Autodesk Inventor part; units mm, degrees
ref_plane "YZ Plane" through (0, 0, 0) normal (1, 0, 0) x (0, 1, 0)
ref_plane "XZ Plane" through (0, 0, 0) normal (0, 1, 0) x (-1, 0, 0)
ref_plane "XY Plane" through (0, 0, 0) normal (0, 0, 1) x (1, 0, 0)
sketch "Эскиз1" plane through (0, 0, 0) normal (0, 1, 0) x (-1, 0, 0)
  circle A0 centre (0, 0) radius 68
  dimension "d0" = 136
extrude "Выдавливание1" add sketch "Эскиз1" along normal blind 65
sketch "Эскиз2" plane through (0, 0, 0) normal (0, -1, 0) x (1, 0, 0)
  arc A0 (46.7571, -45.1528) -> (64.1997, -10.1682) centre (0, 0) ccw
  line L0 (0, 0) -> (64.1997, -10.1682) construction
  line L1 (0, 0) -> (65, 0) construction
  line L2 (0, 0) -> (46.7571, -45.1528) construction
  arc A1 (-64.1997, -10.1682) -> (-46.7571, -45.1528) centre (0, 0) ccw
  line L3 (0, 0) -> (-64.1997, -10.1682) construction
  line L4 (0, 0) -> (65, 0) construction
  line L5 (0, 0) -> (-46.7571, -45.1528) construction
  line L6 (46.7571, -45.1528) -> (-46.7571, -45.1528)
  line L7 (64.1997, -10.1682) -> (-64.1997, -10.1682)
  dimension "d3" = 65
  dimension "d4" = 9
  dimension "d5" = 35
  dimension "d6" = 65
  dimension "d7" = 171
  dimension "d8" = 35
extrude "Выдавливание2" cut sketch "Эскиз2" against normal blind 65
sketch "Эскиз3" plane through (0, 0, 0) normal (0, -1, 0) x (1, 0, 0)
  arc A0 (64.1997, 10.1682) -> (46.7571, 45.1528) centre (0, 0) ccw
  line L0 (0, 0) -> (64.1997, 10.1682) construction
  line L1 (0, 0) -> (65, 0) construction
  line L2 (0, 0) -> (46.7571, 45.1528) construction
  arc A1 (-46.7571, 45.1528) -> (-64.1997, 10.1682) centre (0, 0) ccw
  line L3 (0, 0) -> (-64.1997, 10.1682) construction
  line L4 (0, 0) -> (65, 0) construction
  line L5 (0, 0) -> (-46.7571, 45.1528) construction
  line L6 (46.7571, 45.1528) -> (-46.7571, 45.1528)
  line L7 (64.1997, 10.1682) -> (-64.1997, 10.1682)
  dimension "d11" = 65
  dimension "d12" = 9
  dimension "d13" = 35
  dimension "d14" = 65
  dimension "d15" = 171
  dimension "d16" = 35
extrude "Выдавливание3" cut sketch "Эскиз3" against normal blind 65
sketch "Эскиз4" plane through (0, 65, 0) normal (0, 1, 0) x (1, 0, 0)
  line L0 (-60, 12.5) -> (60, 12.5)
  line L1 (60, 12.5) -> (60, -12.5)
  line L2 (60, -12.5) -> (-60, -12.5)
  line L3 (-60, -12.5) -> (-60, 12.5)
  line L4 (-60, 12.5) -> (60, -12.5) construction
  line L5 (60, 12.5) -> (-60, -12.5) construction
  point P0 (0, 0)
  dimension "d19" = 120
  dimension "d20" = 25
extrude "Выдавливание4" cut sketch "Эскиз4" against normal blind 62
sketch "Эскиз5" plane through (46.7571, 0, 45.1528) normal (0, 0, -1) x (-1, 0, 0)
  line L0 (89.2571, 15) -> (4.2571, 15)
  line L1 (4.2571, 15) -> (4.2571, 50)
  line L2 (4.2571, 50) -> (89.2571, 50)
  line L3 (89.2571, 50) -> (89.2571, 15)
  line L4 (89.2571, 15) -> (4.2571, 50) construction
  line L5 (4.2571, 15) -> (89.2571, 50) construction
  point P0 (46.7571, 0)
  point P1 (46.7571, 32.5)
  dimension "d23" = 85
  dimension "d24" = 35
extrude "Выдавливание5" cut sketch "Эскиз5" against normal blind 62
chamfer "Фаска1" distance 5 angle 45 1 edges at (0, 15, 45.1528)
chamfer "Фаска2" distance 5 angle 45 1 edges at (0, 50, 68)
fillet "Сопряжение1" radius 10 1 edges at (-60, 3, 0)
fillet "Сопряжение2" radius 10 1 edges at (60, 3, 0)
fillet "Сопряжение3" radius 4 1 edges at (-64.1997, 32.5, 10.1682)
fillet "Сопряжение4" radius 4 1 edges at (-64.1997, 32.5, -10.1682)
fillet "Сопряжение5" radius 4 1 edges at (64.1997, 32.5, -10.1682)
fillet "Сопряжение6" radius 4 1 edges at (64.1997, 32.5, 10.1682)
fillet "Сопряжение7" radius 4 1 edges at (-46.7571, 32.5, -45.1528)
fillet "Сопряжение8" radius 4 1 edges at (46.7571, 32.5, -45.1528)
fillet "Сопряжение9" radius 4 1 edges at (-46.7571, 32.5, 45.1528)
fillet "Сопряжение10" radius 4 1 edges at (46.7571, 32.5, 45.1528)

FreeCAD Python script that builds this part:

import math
import FreeCAD as App
import Part
import Sketcher

V = App.Vector


def edges_at(feature, points):
    """Names of the edges that pass closest to the given points."""
    edges = feature.Shape.Edges
    near = lambda p: min(range(len(edges)), key=lambda i: edges[i].distToShape(Part.Vertex(*p))[0])
    return sorted({f"Edge{near(p) + 1}" for p in points})


def add_polygon(sketch, points):
    """Adds a closed chain of lines whose ends are joined by coincident constraints."""
    first, n = sketch.GeometryCount, len(points)
    for a, b in zip(points, points[1:] + points[:1]):
        sketch.addGeometry(Part.LineSegment(App.Vector(*a, 0), App.Vector(*b, 0)), False)
    for i in range(n):
        sketch.addConstraint(Sketcher.Constraint("Coincident", first + i, 2, first + (i + 1) % n, 1))

doc = App.newDocument("Part")
body = doc.addObject("PartDesign::Body", "Body")

# Sketch on XZ plane
sketch1 = body.newObject("Sketcher::SketchObject", "Sketch")
sketch1.AttachmentSupport = (doc.getObject("XZ_Plane"), [""])
sketch1.MapMode = "FlatFace"
sketch1.addGeometry(Part.Circle(V(0, 0, 0), V(0, 0, 1), 68), False)
sketch1.addConstraint([
    Sketcher.Constraint("Coincident", 0, 3, -1, 1),
    Sketcher.Constraint("Diameter", 0, 136.0),
])
pad1 = body.newObject("PartDesign::Pad", "Pad")
pad1.Profile = sketch1
pad1.Length = 65
pad1.Reversed = True

# Sketch on XZ plane
sketch2 = body.newObject("Sketcher::SketchObject", "Sketch001")
sketch2.AttachmentSupport = (doc.getObject("XZ_Plane"), [""])
sketch2.MapMode = "FlatFace"
sketch2.addGeometry([
    Part.LineSegment(V(-47, -45, 0), V(47, -45, 0)),
    Part.ArcOfCircle(Part.Circle(V(0, 0, 0), V(0, 0, 1), 65), math.radians(-44), math.radians(-9)),
    Part.LineSegment(V(64, -10, 0), V(-64, -10, 0)),
    Part.ArcOfCircle(Part.Circle(V(0, 0, 0), V(0, 0, 1), 65), math.radians(-171), math.radians(-136)),
], False)
sketch2.addConstraint([
    Sketcher.Constraint("Coincident", 0, 2, 1, 1),
    Sketcher.Constraint("Coincident", 1, 2, 2, 1),
    Sketcher.Constraint("Coincident", 2, 2, 3, 1),
    Sketcher.Constraint("Coincident", 3, 2, 0, 1),
    Sketcher.Constraint("Horizontal", 0),
    Sketcher.Constraint("Horizontal", 2),
    Sketcher.Constraint("Coincident", 1, 3, -1, 1),
    Sketcher.Constraint("Coincident", 3, 3, -1, 1),
    Sketcher.Constraint("Equal", 1, 3),
    Sketcher.Constraint("Radius", 1, 65.0),
    Sketcher.Constraint("DistanceX", 0, 1, 0, 2, 93.5142),
    Sketcher.Constraint("DistanceX", 2, 2, 2, 1, 128.3994),
])
pocket1 = body.newObject("PartDesign::Pocket", "Pocket")
pocket1.Profile = sketch2
pocket1.Length = 65

# Sketch on XZ plane
sketch3 = body.newObject("Sketcher::SketchObject", "Sketch002")
sketch3.AttachmentSupport = (doc.getObject("XZ_Plane"), [""])
sketch3.MapMode = "FlatFace"
sketch3.addGeometry([
    Part.LineSegment(V(-64, 10, 0), V(64, 10, 0)),
    Part.ArcOfCircle(Part.Circle(V(0, 0, 0), V(0, 0, 1), 65), math.radians(9), math.radians(44)),
    Part.LineSegment(V(47, 45, 0), V(-47, 45, 0)),
    Part.ArcOfCircle(Part.Circle(V(0, 0, 0), V(0, 0, 1), 65), math.radians(136), math.radians(171)),
], False)
sketch3.addConstraint([
    Sketcher.Constraint("Coincident", 0, 2, 1, 1),
    Sketcher.Constraint("Coincident", 1, 2, 2, 1),
    Sketcher.Constraint("Coincident", 2, 2, 3, 1),
    Sketcher.Constraint("Coincident", 3, 2, 0, 1),
    Sketcher.Constraint("Horizontal", 0),
    Sketcher.Constraint("Horizontal", 2),
    Sketcher.Constraint("Coincident", 1, 3, -1, 1),
    Sketcher.Constraint("Coincident", 3, 3, -1, 1),
    Sketcher.Constraint("Equal", 1, 3),
    Sketcher.Constraint("Radius", 1, 65.0),
    Sketcher.Constraint("DistanceX", 0, 1, 0, 2, 128.3994),
    Sketcher.Constraint("DistanceX", 2, 2, 2, 1, 93.5142),
])
pocket2 = body.newObject("PartDesign::Pocket", "Pocket001")
pocket2.Profile = sketch3
pocket2.Length = 65

# Sketch on XZ plane
sketch4 = body.newObject("Sketcher::SketchObject", "Sketch003")
sketch4.AttachmentSupport = (doc.getObject("XZ_Plane"), [""])
sketch4.MapMode = "FlatFace"
sketch4.AttachmentOffset = App.Placement(V(0, 0, -65), App.Rotation())
add_polygon(sketch4, [(60, -12), (-60, -12), (-60, 12), (60, 12)])  # lines 0-3
sketch4.addConstraint([
    Sketcher.Constraint("Horizontal", 0),
    Sketcher.Constraint("Vertical", 1),
    Sketcher.Constraint("Horizontal", 2),
    Sketcher.Constraint("Vertical", 3),
    Sketcher.Constraint("Symmetric", 0, 2, 2, 2, -1, 1),
    Sketcher.Constraint("DistanceX", 0, 2, 0, 1, 120.0),
    Sketcher.Constraint("DistanceY", 1, 1, 1, 2, 25.0),
])
pocket3 = body.newObject("PartDesign::Pocket", "Pocket002")
pocket3.Profile = sketch4
pocket3.Length = 62
pocket3.Reversed = True

# Sketch on XY plane
sketch5 = body.newObject("Sketcher::SketchObject", "Sketch004")
sketch5.AttachmentSupport = (doc.getObject("XY_Plane"), [""])
sketch5.MapMode = "FlatFace"
sketch5.AttachmentOffset = App.Placement(V(0, 0, 45.1528), App.Rotation())
add_polygon(sketch5, [(42, 15), (-42, 15), (-42, 50), (42, 50)])  # lines 0-3
sketch5.addConstraint([
    Sketcher.Constraint("Horizontal", 0),
    Sketcher.Constraint("Vertical", 1),
    Sketcher.Constraint("Horizontal", 2),
    Sketcher.Constraint("Vertical", 3),
    Sketcher.Constraint("DistanceX", 0, 2, 0, 1, 85.0),
    Sketcher.Constraint("DistanceY", 1, 1, 1, 2, 35.0),
    Sketcher.Constraint("DistanceY", -1, 1, 0, 2, 15.0),
    Sketcher.Constraint("DistanceX", 0, 2, -1, 1, 42.5),
])
pocket4 = body.newObject("PartDesign::Pocket", "Pocket003")
pocket4.Profile = sketch5
pocket4.Length = 62
pocket4.Reversed = True
doc.recompute()

chamfer = body.newObject("PartDesign::Chamfer", "Chamfer")
chamfer.Base = (pocket4, edges_at(pocket4, [(0, 15, 45.153)]))
chamfer.Size = 5
doc.recompute()

chamfer2 = body.newObject("PartDesign::Chamfer", "Chamfer001")
chamfer2.Base = (chamfer, edges_at(chamfer, [(0, 50, 68)]))
chamfer2.Size = 5
doc.recompute()

fillet = body.newObject("PartDesign::Fillet", "Fillet")
fillet.Base = (chamfer2, edges_at(chamfer2, [(-60, 3, 0)]))
fillet.Radius = 10
doc.recompute()

fillet2 = body.newObject("PartDesign::Fillet", "Fillet001")
fillet2.Base = (fillet, edges_at(fillet, [(60, 3, 0)]))
fillet2.Radius = 10
doc.recompute()

fillet3 = body.newObject("PartDesign::Fillet", "Fillet002")
fillet3.Base = (fillet2, edges_at(fillet2, [(-64.2, 32.5, 10.168)]))
fillet3.Radius = 4
doc.recompute()

fillet4 = body.newObject("PartDesign::Fillet", "Fillet003")
fillet4.Base = (fillet3, edges_at(fillet3, [(-64.2, 32.5, -10.168)]))
fillet4.Radius = 4
doc.recompute()

fillet5 = body.newObject("PartDesign::Fillet", "Fillet004")
fillet5.Base = (fillet4, edges_at(fillet4, [(64.2, 32.5, -10.168)]))
fillet5.Radius = 4
doc.recompute()

fillet6 = body.newObject("PartDesign::Fillet", "Fillet005")
fillet6.Base = (fillet5, edges_at(fillet5, [(64.2, 32.5, 10.168)]))
fillet6.Radius = 4
doc.recompute()

fillet7 = body.newObject("PartDesign::Fillet", "Fillet006")
fillet7.Base = (fillet6, edges_at(fillet6, [(-46.757, 32.5, -45.153)]))
fillet7.Radius = 4
doc.recompute()

fillet8 = body.newObject("PartDesign::Fillet", "Fillet007")
fillet8.Base = (fillet7, edges_at(fillet7, [(46.757, 32.5, -45.153)]))
fillet8.Radius = 4
doc.recompute()

fillet9 = body.newObject("PartDesign::Fillet", "Fillet008")
fillet9.Base = (fillet8, edges_at(fillet8, [(-46.757, 32.5, 45.153)]))
fillet9.Radius = 4
doc.recompute()

fillet10 = body.newObject("PartDesign::Fillet", "Fillet009")
fillet10.Base = (fillet9, edges_at(fillet9, [(46.757, 32.5, 45.153)]))
fillet10.Radius = 4

doc.recompute()
